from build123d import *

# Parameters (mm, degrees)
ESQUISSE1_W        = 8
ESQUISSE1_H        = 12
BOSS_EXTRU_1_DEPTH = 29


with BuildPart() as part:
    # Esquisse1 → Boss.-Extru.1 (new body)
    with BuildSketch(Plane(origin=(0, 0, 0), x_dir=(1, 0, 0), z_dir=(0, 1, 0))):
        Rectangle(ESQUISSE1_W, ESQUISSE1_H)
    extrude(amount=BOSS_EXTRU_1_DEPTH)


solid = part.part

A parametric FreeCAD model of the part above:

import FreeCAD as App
import Part
import Sketcher
Q = App.Units.Quantity

doc = App.newDocument("Part")
body = doc.addObject("PartDesign::Body", "Body")

sketch1 = body.newObject("Sketcher::SketchObject", "Sketch")
sketch1.AttachmentSupport = (doc.getObject("XZ_Plane"), [""])
sketch1.MapMode = "FlatFace"
sketch1.addGeometry([
    Part.LineSegment(App.Vector(-4, -6, 0), App.Vector(-4, 6, 0)),
    Part.LineSegment(App.Vector(-4, 6, 0), App.Vector(4, 6, 0)),
    Part.LineSegment(App.Vector(4, 6, 0), App.Vector(4, -6, 0)),
    Part.LineSegment(App.Vector(4, -6, 0), App.Vector(-4, -6, 0)),
], False)
sketch1.addConstraint([
    Sketcher.Constraint("Coincident", 0, 2, 1, 1),
    Sketcher.Constraint("Coincident", 1, 2, 2, 1),
    Sketcher.Constraint("Coincident", 2, 2, 3, 1),
    Sketcher.Constraint("Coincident", 3, 2, 0, 1),
    Sketcher.Constraint("Vertical", 0),
    Sketcher.Constraint("Horizontal", 1),
    Sketcher.Constraint("Vertical", 2),
    Sketcher.Constraint("Horizontal", 3),
    Sketcher.Constraint("Symmetric", 0, 2, 2, 2, -1, 1),
    Sketcher.Constraint("DistanceX", 1, 1, 1, 2, Q("8 mm")),
    Sketcher.Constraint("DistanceY", 0, 1, 0, 2, Q("12 mm")),
])
pad1 = body.newObject("PartDesign::Pad", "Pad")
pad1.Profile = sketch1
pad1.Length = 29
pad1.Reversed = True

doc.recompute()
